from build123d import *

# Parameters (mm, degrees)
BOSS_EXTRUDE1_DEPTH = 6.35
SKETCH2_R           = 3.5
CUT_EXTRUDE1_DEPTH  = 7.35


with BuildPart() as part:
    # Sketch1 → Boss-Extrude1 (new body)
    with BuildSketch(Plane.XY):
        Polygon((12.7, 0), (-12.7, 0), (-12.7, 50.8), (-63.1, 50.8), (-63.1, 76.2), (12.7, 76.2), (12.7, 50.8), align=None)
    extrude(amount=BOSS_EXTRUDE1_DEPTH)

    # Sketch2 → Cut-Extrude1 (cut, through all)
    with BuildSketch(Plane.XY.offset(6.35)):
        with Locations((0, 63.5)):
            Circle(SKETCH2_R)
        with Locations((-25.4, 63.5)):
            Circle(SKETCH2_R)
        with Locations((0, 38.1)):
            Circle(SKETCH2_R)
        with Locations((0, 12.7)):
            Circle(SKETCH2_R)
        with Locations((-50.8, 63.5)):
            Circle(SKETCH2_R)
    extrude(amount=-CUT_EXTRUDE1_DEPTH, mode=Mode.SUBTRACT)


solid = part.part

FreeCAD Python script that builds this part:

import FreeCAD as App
import Part
import Sketcher
Q = App.Units.Quantity


def add_polygon(sketch, points):
    """Adds a closed chain of lines whose ends are joined by coincident constraints."""
    first, n = sketch.GeometryCount, len(points)
    for a, b in zip(points, points[1:] + points[:1]):
        sketch.addGeometry(Part.LineSegment(App.Vector(*a, 0), App.Vector(*b, 0)), False)
    for i in range(n):
        sketch.addConstraint(Sketcher.Constraint("Coincident", first + i, 2, first + (i + 1) % n, 1))

doc = App.newDocument("Part")
body = doc.addObject("PartDesign::Body", "Body")

sketch1 = body.newObject("Sketcher::SketchObject", "Sketch")
sketch1.AttachmentSupport = (doc.getObject("XY_Plane"), [""])
sketch1.MapMode = "FlatFace"
add_polygon(sketch1, [(-13, 0), (13, 0), (13, 76), (-63, 76), (-63, 51), (-13, 51)])
sketch1.addConstraint([
    Sketcher.Constraint("Horizontal", 0),
    Sketcher.Constraint("Vertical", 1),
    Sketcher.Constraint("Horizontal", 2),
    Sketcher.Constraint("Vertical", 3),
    Sketcher.Constraint("Horizontal", 4),
    Sketcher.Constraint("Vertical", 5),
    Sketcher.Constraint("Symmetric", 0, 2, 5, 2, -1, 1),
    Sketcher.Constraint("Equal", 0, 3),
    Sketcher.Constraint("DistanceX", 0, 1, 0, 2, Q("1 in")),
    Sketcher.Constraint("DistanceY", 1, 1, 1, 2, Q("3 in")),
    Sketcher.Constraint("DistanceX", 2, 2, 2, 1, Q("75.8 mm")),
])
pad1 = body.newObject("PartDesign::Pad", "Pad")
pad1.Profile = sketch1
pad1.Length = Q("0.25 in")

sketch2 = body.newObject("Sketcher::SketchObject", "Sketch001")
sketch2.AttachmentSupport = (doc.getObject("XY_Plane"), [""])
sketch2.MapMode = "FlatFace"
sketch2.AttachmentOffset = App.Placement(App.Vector(0, 0, 0.25 * 25.4), App.Rotation())
sketch2.addGeometry([
    Part.Circle(App.Vector(0, 63.5, 0), App.Vector(0, 0, 1), 3.5),
    Part.Circle(App.Vector(-25.4, 63.5, 0), App.Vector(0, 0, 1), 3.5),
    Part.Circle(App.Vector(0, 38.1, 0), App.Vector(0, 0, 1), 3.5),
    Part.Circle(App.Vector(0, 12.7, 0), App.Vector(0, 0, 1), 3.5),
    Part.Circle(App.Vector(-50.8, 63.5, 0), App.Vector(0, 0, 1), 3.5),
], False)
sketch2.addConstraint([
    Sketcher.Constraint("Equal", 0, 1),
    Sketcher.Constraint("Equal", 1, 2),
    Sketcher.Constraint("Equal", 2, 3),
    Sketcher.Constraint("Equal", 3, 4),
    Sketcher.Constraint("PointOnObject", 0, 3, -2),
    Sketcher.Constraint("PointOnObject", 2, 3, -2),
    Sketcher.Constraint("PointOnObject", 3, 3, -2),
    Sketcher.Constraint("Horizontal", 0, 3, 1, 3),
    Sketcher.Constraint("Horizontal", 1, 3, 4, 3),
    Sketcher.Constraint("DistanceX", 1, 3, -1, 1, Q("1 in")),
    Sketcher.Constraint("DistanceX", 4, 3, -1, 1, Q("2 in")),
    Sketcher.Constraint("DistanceY", 2, 3, 0, 3, Q("1 in")),
    Sketcher.Constraint("DistanceY", 3, 3, 2, 3, Q("1 in")),
    Sketcher.Constraint("DistanceY", -1, 1, 0, 3, Q("2.5 in")),
    Sketcher.Constraint("Diameter", 0, Q("7 mm")),
])
pocket1 = body.newObject("PartDesign::Pocket", "Pocket")
pocket1.Profile = sketch2
pocket1.Type = "ThroughAll"

doc.recompute()
